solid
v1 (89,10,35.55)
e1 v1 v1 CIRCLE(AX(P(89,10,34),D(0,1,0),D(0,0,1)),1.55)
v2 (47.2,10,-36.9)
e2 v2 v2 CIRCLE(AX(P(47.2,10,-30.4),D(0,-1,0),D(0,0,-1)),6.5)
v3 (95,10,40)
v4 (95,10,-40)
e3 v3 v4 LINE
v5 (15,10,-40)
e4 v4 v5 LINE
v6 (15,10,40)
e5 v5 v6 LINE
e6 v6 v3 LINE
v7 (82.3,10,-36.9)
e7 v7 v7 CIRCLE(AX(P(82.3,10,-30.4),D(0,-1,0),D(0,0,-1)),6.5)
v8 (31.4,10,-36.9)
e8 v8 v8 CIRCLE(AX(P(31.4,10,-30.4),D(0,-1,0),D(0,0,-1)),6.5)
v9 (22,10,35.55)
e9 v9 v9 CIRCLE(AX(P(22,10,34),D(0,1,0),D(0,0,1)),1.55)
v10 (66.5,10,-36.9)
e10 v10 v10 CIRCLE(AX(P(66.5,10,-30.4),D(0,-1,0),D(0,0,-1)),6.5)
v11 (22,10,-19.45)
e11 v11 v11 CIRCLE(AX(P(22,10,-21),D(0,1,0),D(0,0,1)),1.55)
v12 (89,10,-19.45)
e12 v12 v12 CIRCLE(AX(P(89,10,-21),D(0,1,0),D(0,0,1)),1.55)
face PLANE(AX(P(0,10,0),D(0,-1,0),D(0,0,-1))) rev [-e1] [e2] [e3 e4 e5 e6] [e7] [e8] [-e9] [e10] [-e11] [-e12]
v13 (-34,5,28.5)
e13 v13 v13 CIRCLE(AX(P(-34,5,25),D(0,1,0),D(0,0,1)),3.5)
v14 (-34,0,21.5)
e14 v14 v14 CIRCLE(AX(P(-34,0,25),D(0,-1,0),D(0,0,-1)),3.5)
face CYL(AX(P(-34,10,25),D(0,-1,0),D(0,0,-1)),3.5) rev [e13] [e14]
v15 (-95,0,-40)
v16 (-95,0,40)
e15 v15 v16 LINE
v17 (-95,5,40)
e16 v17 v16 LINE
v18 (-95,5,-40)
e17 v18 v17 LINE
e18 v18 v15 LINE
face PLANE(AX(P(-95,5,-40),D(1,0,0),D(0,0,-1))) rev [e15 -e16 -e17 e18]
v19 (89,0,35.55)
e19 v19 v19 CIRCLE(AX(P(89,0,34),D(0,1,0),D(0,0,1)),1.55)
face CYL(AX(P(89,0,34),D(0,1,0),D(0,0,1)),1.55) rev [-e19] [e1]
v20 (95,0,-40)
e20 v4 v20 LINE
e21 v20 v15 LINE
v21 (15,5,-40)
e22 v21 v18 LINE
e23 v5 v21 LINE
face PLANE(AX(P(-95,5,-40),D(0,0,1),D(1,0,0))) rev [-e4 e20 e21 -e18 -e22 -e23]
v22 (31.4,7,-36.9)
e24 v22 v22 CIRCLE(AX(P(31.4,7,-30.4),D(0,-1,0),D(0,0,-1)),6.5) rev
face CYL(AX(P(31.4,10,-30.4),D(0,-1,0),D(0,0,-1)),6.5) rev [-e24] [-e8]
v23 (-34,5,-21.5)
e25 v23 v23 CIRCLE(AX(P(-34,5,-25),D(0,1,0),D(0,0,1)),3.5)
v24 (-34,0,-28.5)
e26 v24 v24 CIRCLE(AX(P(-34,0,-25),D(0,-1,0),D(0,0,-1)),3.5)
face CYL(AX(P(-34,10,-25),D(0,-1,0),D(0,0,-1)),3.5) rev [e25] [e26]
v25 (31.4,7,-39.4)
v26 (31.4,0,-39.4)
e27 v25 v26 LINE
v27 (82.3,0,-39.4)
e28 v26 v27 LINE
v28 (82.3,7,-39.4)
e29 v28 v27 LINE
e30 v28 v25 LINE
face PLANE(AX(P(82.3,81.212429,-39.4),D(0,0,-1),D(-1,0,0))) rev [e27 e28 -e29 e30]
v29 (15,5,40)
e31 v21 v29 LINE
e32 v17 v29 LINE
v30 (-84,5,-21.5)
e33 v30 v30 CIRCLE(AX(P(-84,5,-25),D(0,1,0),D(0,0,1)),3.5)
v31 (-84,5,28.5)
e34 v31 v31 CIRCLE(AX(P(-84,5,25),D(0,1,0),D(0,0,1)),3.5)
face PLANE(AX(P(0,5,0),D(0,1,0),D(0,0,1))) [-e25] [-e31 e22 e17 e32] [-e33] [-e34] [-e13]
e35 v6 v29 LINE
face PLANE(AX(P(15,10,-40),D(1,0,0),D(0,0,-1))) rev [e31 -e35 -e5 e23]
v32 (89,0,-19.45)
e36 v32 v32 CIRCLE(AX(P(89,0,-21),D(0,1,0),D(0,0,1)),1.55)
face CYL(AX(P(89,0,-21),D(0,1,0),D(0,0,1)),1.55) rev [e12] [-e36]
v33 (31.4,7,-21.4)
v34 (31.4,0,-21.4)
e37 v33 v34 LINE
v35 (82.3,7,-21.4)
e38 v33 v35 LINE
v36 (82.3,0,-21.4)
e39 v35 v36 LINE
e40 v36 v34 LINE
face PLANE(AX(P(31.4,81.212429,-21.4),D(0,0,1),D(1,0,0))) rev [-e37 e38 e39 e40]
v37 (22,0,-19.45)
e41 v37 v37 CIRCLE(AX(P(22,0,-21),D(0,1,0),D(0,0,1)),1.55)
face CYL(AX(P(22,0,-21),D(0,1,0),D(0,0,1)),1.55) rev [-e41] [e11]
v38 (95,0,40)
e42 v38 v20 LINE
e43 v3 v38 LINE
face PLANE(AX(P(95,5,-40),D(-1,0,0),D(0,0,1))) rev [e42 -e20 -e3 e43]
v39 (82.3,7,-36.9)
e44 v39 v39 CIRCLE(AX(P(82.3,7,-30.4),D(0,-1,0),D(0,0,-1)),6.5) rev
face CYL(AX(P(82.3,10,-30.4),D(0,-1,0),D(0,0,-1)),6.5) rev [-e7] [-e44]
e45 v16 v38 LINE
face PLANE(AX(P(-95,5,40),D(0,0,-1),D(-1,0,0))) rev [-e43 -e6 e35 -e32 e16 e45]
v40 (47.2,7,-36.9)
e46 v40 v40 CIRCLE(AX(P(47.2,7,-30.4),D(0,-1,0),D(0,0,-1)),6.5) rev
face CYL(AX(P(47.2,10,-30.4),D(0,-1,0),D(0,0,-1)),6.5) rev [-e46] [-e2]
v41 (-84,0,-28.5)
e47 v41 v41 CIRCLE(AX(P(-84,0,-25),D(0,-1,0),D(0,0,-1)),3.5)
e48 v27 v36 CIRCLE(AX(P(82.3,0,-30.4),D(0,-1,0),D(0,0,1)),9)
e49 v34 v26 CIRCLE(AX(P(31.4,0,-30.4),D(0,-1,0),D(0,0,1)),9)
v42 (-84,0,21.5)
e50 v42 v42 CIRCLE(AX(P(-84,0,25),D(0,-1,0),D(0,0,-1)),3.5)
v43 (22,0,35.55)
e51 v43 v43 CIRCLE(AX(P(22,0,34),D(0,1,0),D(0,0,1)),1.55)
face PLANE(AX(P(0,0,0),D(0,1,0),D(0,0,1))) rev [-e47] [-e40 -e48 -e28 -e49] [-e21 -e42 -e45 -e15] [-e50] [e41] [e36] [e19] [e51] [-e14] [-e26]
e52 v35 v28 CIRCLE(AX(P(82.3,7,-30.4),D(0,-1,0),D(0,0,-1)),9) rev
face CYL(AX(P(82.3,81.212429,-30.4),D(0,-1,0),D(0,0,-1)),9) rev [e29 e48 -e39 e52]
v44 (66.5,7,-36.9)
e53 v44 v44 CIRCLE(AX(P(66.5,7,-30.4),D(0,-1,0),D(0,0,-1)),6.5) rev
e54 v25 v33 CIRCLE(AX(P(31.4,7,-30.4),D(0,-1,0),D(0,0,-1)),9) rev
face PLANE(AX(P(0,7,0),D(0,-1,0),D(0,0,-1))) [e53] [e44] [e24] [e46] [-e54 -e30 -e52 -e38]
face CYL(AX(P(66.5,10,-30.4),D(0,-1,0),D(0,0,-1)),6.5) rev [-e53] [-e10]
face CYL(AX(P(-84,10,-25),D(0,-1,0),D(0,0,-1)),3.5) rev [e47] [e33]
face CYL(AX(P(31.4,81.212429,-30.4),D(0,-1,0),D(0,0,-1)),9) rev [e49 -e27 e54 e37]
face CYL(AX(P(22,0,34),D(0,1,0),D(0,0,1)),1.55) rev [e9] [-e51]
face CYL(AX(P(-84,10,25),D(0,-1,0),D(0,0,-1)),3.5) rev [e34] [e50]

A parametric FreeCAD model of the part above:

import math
import FreeCAD as App
import Part
import Sketcher

V = App.Vector


def add_polygon(sketch, points):
    """Adds a closed chain of lines whose ends are joined by coincident constraints."""
    first, n = sketch.GeometryCount, len(points)
    for a, b in zip(points, points[1:] + points[:1]):
        sketch.addGeometry(Part.LineSegment(App.Vector(*a, 0), App.Vector(*b, 0)), False)
    for i in range(n):
        sketch.addConstraint(Sketcher.Constraint("Coincident", first + i, 2, first + (i + 1) % n, 1))

doc = App.newDocument("Part")
body = doc.addObject("PartDesign::Body", "Body")

sketch1 = body.newObject("Sketcher::SketchObject", "Sketch")
sketch1.AttachmentSupport = (doc.getObject("XZ_Plane"), [""])
sketch1.MapMode = "FlatFace"
add_polygon(sketch1, [(-95, -40), (-95, 40), (95, 40), (95, -40)])
sketch1.addConstraint([
    Sketcher.Constraint("Vertical", 0),
    Sketcher.Constraint("Horizontal", 1),
    Sketcher.Constraint("Vertical", 2),
    Sketcher.Constraint("Horizontal", 3),
    Sketcher.Constraint("Symmetric", 0, 2, 2, 2, -1, 1),
    Sketcher.Constraint("DistanceX", 1, 1, 1, 2, 190.0),
    Sketcher.Constraint("DistanceY", 0, 1, 0, 2, 80.0),
])
pad1 = body.newObject("PartDesign::Pad", "Pad")
pad1.Profile = sketch1
pad1.Length = 5
pad1.Reversed = True

sketch2 = body.newObject("Sketcher::SketchObject", "Sketch001")
sketch2.AttachmentSupport = (doc.getObject("XZ_Plane"), [""])
sketch2.MapMode = "FlatFace"
sketch2.AttachmentOffset = App.Placement(V(0, 0, -5), App.Rotation())
add_polygon(sketch2, [(15, -40), (15, 40), (95, 40), (95, -40)])
sketch2.addConstraint([
    Sketcher.Constraint("Vertical", 0),
    Sketcher.Constraint("Horizontal", 1),
    Sketcher.Constraint("Vertical", 2),
    Sketcher.Constraint("Horizontal", 3),
    Sketcher.Constraint("Equal", 3, 0),
    Sketcher.Constraint("DistanceX", 1, 1, 1, 2, 80.0),
    Sketcher.Constraint("DistanceX", -1, 1, 0, 2, 15.0),
    Sketcher.Constraint("DistanceY", -1, 1, 0, 2, 40.0),
])
pad2 = body.newObject("PartDesign::Pad", "Pad001")
pad2.Profile = sketch2
pad2.Length = 5
pad2.Reversed = True

sketch3 = body.newObject("Sketcher::SketchObject", "Sketch002")
sketch3.AttachmentSupport = (doc.getObject("XZ_Plane"), [""])
sketch3.MapMode = "FlatFace"
sketch3.AttachmentOffset = App.Placement(V(0, 0, -10), App.Rotation())
sketch3.addGeometry([
    Part.Circle(V(22, -21, 0), V(0, 0, 1), 1.55),
    Part.Circle(V(89, -21, 0), V(0, 0, 1), 1.55),
    Part.Circle(V(22, 34, 0), V(0, 0, 1), 1.55),
    Part.Circle(V(89, 34, 0), V(0, 0, 1), 1.55),
], False)
sketch3.addConstraint([
    Sketcher.Constraint("Equal", 0, 1),
    Sketcher.Constraint("Equal", 1, 2),
    Sketcher.Constraint("Equal", 2, 3),
    Sketcher.Constraint("Horizontal", 0, 3, 1, 3),
    Sketcher.Constraint("Horizontal", 2, 3, 3, 3),
    Sketcher.Constraint("Vertical", 0, 3, 2, 3),
    Sketcher.Constraint("Vertical", 1, 3, 3, 3),
    Sketcher.Constraint("Diameter", 0, 3.1),
    Sketcher.Constraint("DistanceX", -1, 1, 0, 3, 22.0),
    Sketcher.Constraint("DistanceY", 0, 3, -1, 1, 21.0),
    Sketcher.Constraint("DistanceX", -1, 1, 1, 3, 89.0),
    Sketcher.Constraint("DistanceY", -1, 1, 2, 3, 34.0),
])
pocket1 = body.newObject("PartDesign::Pocket", "Pocket")
pocket1.Profile = sketch3
pocket1.Type = "ThroughAll"
pocket1.Reversed = True

sketch4 = body.newObject("Sketcher::SketchObject", "Sketch003")
sketch4.AttachmentSupport = (doc.getObject("XZ_Plane"), [""])
sketch4.MapMode = "FlatFace"
sketch4.addGeometry([
    Part.Circle(V(31.4, -30.4, 0), V(0, 0, 1), 6.5),
    Part.Circle(V(47.2, -30.4, 0), V(0, 0, 1), 6.5),
    Part.Circle(V(66.5, -30.4, 0), V(0, 0, 1), 6.5),
    Part.Circle(V(82.3, -30.4, 0), V(0, 0, 1), 6.5),
], False)
sketch4.addConstraint([
    Sketcher.Constraint("Equal", 0, 1),
    Sketcher.Constraint("Equal", 1, 2),
    Sketcher.Constraint("Equal", 2, 3),
    Sketcher.Constraint("Horizontal", 0, 3, 1, 3),
    Sketcher.Constraint("Horizontal", 1, 3, 2, 3),
    Sketcher.Constraint("Horizontal", 2, 3, 3, 3),
    Sketcher.Constraint("Diameter", 0, 13.0),
    Sketcher.Constraint("DistanceX", -1, 1, 0, 3, 31.4),
    Sketcher.Constraint("DistanceY", 0, 3, -1, 1, 30.4),
    Sketcher.Constraint("DistanceX", -1, 1, 1, 3, 47.2),
    Sketcher.Constraint("DistanceX", -1, 1, 2, 3, 66.5),
    Sketcher.Constraint("DistanceX", -1, 1, 3, 3, 82.3),
])
pocket2 = body.newObject("PartDesign::Pocket", "Pocket001")
pocket2.Profile = sketch4
pocket2.Type = "ThroughAll"

sketch5 = body.newObject("Sketcher::SketchObject", "Sketch004")
sketch5.AttachmentSupport = (doc.getObject("XZ_Plane"), [""])
sketch5.MapMode = "FlatFace"
sketch5.addGeometry([
    Part.LineSegment(V(82.3, -21.4, 0), V(31.4, -21.4, 0)),
    Part.ArcOfCircle(Part.Circle(V(31.4, -30.4, 0), V(0, 0, 1), 9), math.radians(90), math.radians(270)),
    Part.LineSegment(V(31.4, -39.4, 0), V(82.3, -39.4, 0)),
    Part.ArcOfCircle(Part.Circle(V(82.3, -30.4, 0), V(0, 0, 1), 9), math.radians(-90), math.radians(90)),
], False)
sketch5.addConstraint([
    Sketcher.Constraint("Tangent", 0, 2, 1, 1),
    Sketcher.Constraint("Tangent", 1, 2, 2, 1),
    Sketcher.Constraint("Tangent", 2, 2, 3, 1),
    Sketcher.Constraint("Tangent", 3, 2, 0, 1),
    Sketcher.Constraint("Horizontal", 0),
    Sketcher.Constraint("Horizontal", 2),
    Sketcher.Constraint("Radius", 1, 9.0),
    Sketcher.Constraint("DistanceX", 0, 2, 0, 1, 50.9),
    Sketcher.Constraint("DistanceX", -1, 1, 1, 3, 31.4),
    Sketcher.Constraint("DistanceY", 1, 3, -1, 1, 30.4),
])
pocket3 = body.newObject("PartDesign::Pocket", "Pocket002")
pocket3.Profile = sketch5
pocket3.Length = 7

sketch6 = body.newObject("Sketcher::SketchObject", "Sketch005")
sketch6.AttachmentSupport = (doc.getObject("XZ_Plane"), [""])
sketch6.MapMode = "FlatFace"
sketch6.addGeometry([
    Part.Circle(V(-84, 25, 0), V(0, 0, 1), 3.5),
    Part.Circle(V(-34, 25, 0), V(0, 0, 1), 3.5),
    Part.Circle(V(-84, -25, 0), V(0, 0, 1), 3.5),
    Part.Circle(V(-34, -25, 0), V(0, 0, 1), 3.5),
], False)
sketch6.addConstraint([
    Sketcher.Constraint("Equal", 0, 1),
    Sketcher.Constraint("Equal", 1, 2),
    Sketcher.Constraint("Equal", 2, 3),
    Sketcher.Constraint("Symmetric", 0, 3, 2, 3, -1),
    Sketcher.Constraint("Symmetric", 1, 3, 3, 3, -1),
    Sketcher.Constraint("Horizontal", 0, 3, 1, 3),
    Sketcher.Constraint("Diameter", 0, 7.0),
    Sketcher.Constraint("DistanceX", 0, 3, -1, 1, 84.0),
    Sketcher.Constraint("DistanceY", -1, 1, 0, 3, 25.0),
    Sketcher.Constraint("DistanceX", 1, 3, -1, 1, 34.0),
])
pocket4 = body.newObject("PartDesign::Pocket", "Pocket003")
pocket4.Profile = sketch6
pocket4.Type = "ThroughAll"

doc.recompute()
